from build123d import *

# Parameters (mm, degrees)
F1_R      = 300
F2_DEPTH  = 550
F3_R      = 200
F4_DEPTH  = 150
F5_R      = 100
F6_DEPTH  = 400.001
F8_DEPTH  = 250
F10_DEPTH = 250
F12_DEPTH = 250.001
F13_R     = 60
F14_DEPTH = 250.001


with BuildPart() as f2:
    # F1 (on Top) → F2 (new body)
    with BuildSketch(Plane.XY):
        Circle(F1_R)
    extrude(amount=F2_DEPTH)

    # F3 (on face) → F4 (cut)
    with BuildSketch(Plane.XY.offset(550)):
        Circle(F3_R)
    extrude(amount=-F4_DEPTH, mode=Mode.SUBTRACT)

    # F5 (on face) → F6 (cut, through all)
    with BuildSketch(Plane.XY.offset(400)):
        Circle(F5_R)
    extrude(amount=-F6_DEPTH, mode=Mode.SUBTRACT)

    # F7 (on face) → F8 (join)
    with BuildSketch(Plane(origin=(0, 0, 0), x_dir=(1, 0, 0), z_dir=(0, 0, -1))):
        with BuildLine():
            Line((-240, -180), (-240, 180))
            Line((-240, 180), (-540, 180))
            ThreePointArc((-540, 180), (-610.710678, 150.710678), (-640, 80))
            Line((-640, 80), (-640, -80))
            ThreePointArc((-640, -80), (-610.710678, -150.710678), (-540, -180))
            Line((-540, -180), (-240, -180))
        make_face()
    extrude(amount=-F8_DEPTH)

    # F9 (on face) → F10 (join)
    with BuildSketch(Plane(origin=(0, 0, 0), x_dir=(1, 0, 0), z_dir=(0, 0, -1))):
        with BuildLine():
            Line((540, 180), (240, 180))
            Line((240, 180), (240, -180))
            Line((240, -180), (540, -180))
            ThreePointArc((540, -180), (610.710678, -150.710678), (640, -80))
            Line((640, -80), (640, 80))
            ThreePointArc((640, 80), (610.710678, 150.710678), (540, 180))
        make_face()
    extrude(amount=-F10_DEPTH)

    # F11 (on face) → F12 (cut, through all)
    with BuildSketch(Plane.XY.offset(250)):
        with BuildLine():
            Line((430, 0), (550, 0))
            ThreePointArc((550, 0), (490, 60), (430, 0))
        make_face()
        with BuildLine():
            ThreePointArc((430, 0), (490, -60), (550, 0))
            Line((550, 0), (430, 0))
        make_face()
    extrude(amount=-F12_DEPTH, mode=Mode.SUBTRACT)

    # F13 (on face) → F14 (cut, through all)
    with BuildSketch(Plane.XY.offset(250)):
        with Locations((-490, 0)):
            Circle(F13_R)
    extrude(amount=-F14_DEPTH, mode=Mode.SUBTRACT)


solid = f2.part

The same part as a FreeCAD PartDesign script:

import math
import FreeCAD as App
import Part
import Sketcher

V = App.Vector

doc = App.newDocument("Part")
params = doc.addObject("Spreadsheet::Sheet", "Params")
for row, (alias, value) in enumerate([
    ("sketch1_diameter", "600 mm"),
    ("pad1_length", "550 mm"),
    ("sketch2_diameter", "400 mm"),
    ("pocket1_length", "150 mm"),
    ("sketch3_diameter", "200 mm"),
    ("sketch4_radius", "100 mm"),
    ("sketch4_width", "300 mm"),
    ("sketch4_height", "360 mm"),
    ("pad2_length", "250 mm"),
    ("sketch5_radius", "100 mm"),
    ("sketch5_width", "300 mm"),
    ("sketch5_height", "360 mm"),
    ("pad3_length", "250 mm"),
    ("sketch6_diameter", "120 mm"),
    ("sketch7_diameter", "120 mm"),
], start=1):
    params.set(f"A{row}", alias)
    params.set(f"B{row}", "=" + value)
    params.setAlias(f"B{row}", alias)

body = doc.addObject("PartDesign::Body", "Body")

sketch1 = doc.addObject("Sketcher::SketchObject", "Sketch")
body.addObject(sketch1)
sketch1.AttachmentSupport = (doc.XY_Plane, [""])
sketch1.MapMode = "FlatFace"
sketch1.addGeometry(Part.Circle(V(0, 0, 0), V(0, 0, 1), 300), False)
sketch1.addConstraint(Sketcher.Constraint("Coincident", 0, 3, -1, 1))
sketch1.addConstraint(Sketcher.Constraint("Diameter", 0, 600.0))
sketch1.setExpression("Constraints[1]", "Params.sketch1_diameter")
pad1 = doc.addObject("PartDesign::Pad", "Pad")
body.addObject(pad1)
pad1.Profile = sketch1
pad1.setExpression("Length", "Params.pad1_length")

sketch2 = doc.addObject("Sketcher::SketchObject", "Sketch001")
body.addObject(sketch2)
sketch2.AttachmentSupport = (doc.XY_Plane, [""])
sketch2.MapMode = "FlatFace"
sketch2.AttachmentOffset = App.Placement(V(0, 0, 550), App.Rotation())
sketch2.addGeometry(Part.Circle(V(0, 0, 0), V(0, 0, 1), 200), False)
sketch2.addConstraint(Sketcher.Constraint("Coincident", 0, 3, -1, 1))
sketch2.addConstraint(Sketcher.Constraint("Diameter", 0, 400.0))
sketch2.setExpression("Constraints[1]", "Params.sketch2_diameter")
pocket1 = doc.addObject("PartDesign::Pocket", "Pocket")
body.addObject(pocket1)
pocket1.Profile = sketch2
pocket1.setExpression("Length", "Params.pocket1_length")

sketch3 = doc.addObject("Sketcher::SketchObject", "Sketch002")
body.addObject(sketch3)
sketch3.AttachmentSupport = (doc.XY_Plane, [""])
sketch3.MapMode = "FlatFace"
sketch3.AttachmentOffset = App.Placement(V(0, 0, 400), App.Rotation())
sketch3.addGeometry(Part.Circle(V(0, 0, 0), V(0, 0, 1), 100), False)
sketch3.addConstraint(Sketcher.Constraint("Coincident", 0, 3, -1, 1))
sketch3.addConstraint(Sketcher.Constraint("Diameter", 0, 200.0))
sketch3.setExpression("Constraints[1]", "Params.sketch3_diameter")
pocket2 = doc.addObject("PartDesign::Pocket", "Pocket001")
body.addObject(pocket2)
pocket2.Profile = sketch3
pocket2.Type = "ThroughAll"

sketch4 = doc.addObject("Sketcher::SketchObject", "Sketch003")
body.addObject(sketch4)
sketch4.AttachmentSupport = (doc.XY_Plane, [""])
sketch4.MapMode = "FlatFace"
sketch4.addGeometry(Part.LineSegment(V(-240, 180, 0), V(-240, -180, 0)), False)
sketch4.addGeometry(Part.LineSegment(V(-240, -180, 0), V(-540, -180, 0)), False)
sketch4.addGeometry(Part.ArcOfCircle(Part.Circle(V(-540, -80, 0), V(0, 0, 1), 100), math.radians(-180), math.radians(-90)), False)
sketch4.addGeometry(Part.LineSegment(V(-640, -80, 0), V(-640, 80, 0)), False)
sketch4.addGeometry(Part.ArcOfCircle(Part.Circle(V(-540, 80, 0), V(0, 0, 1), 100), math.radians(90), math.radians(180)), False)
sketch4.addGeometry(Part.LineSegment(V(-540, 180, 0), V(-240, 180, 0)), False)
sketch4.addConstraint(Sketcher.Constraint("Coincident", 0, 2, 1, 1))
sketch4.addConstraint(Sketcher.Constraint("Tangent", 1, 2, 2, 2))
sketch4.addConstraint(Sketcher.Constraint("Tangent", 2, 1, 3, 1))
sketch4.addConstraint(Sketcher.Constraint("Tangent", 3, 2, 4, 2))
sketch4.addConstraint(Sketcher.Constraint("Tangent", 4, 1, 5, 1))
sketch4.addConstraint(Sketcher.Constraint("Coincident", 5, 2, 0, 1))
sketch4.addConstraint(Sketcher.Constraint("Vertical", 0))
sketch4.addConstraint(Sketcher.Constraint("Horizontal", 1))
sketch4.addConstraint(Sketcher.Constraint("Vertical", 3))
sketch4.addConstraint(Sketcher.Constraint("Horizontal", 5))
sketch4.addConstraint(Sketcher.Constraint("Equal", 2, 4))
sketch4.addConstraint(Sketcher.Constraint("Radius", 2, 100.0))
sketch4.addConstraint(Sketcher.Constraint("DistanceX", 1, 2, 1, 1, 300.0))
sketch4.addConstraint(Sketcher.Constraint("DistanceY", 0, 2, 0, 1, 360.0))
sketch4.addConstraint(Sketcher.Constraint("DistanceX", 2, 3, -1, 1, 540.0))
sketch4.addConstraint(Sketcher.Constraint("DistanceY", 2, 3, -1, 1, 80.0))
sketch4.setExpression("Constraints[11]", "Params.sketch4_radius")
sketch4.setExpression("Constraints[12]", "Params.sketch4_width")
sketch4.setExpression("Constraints[13]", "Params.sketch4_height")
pad2 = doc.addObject("PartDesign::Pad", "Pad001")
body.addObject(pad2)
pad2.Profile = sketch4
pad2.setExpression("Length", "Params.pad2_length")

sketch5 = doc.addObject("Sketcher::SketchObject", "Sketch004")
body.addObject(sketch5)
sketch5.AttachmentSupport = (doc.XY_Plane, [""])
sketch5.MapMode = "FlatFace"
sketch5.addGeometry(Part.LineSegment(V(540, -180, 0), V(240, -180, 0)), False)
sketch5.addGeometry(Part.LineSegment(V(240, -180, 0), V(240, 180, 0)), False)
sketch5.addGeometry(Part.LineSegment(V(240, 180, 0), V(540, 180, 0)), False)
sketch5.addGeometry(Part.ArcOfCircle(Part.Circle(V(540, 80, 0), V(0, 0, 1), 100), math.radians(0), math.radians(90)), False)
sketch5.addGeometry(Part.LineSegment(V(640, 80, 0), V(640, -80, 0)), False)
sketch5.addGeometry(Part.ArcOfCircle(Part.Circle(V(540, -80, 0), V(0, 0, 1), 100), math.radians(-90), math.radians(0)), False)
sketch5.addConstraint(Sketcher.Constraint("Coincident", 0, 2, 1, 1))
sketch5.addConstraint(Sketcher.Constraint("Coincident", 1, 2, 2, 1))
sketch5.addConstraint(Sketcher.Constraint("Tangent", 2, 2, 3, 2))
sketch5.addConstraint(Sketcher.Constraint("Tangent", 3, 1, 4, 1))
sketch5.addConstraint(Sketcher.Constraint("Tangent", 4, 2, 5, 2))
sketch5.addConstraint(Sketcher.Constraint("Tangent", 5, 1, 0, 1))
sketch5.addConstraint(Sketcher.Constraint("Horizontal", 0))
sketch5.addConstraint(Sketcher.Constraint("Vertical", 1))
sketch5.addConstraint(Sketcher.Constraint("Horizontal", 2))
sketch5.addConstraint(Sketcher.Constraint("Vertical", 4))
sketch5.addConstraint(Sketcher.Constraint("Equal", 3, 5))
sketch5.addConstraint(Sketcher.Constraint("Radius", 3, 100.0))
sketch5.addConstraint(Sketcher.Constraint("DistanceX", 0, 2, 0, 1, 300.0))
sketch5.addConstraint(Sketcher.Constraint("DistanceY", 1, 1, 1, 2, 360.0))
sketch5.addConstraint(Sketcher.Constraint("DistanceX", -1, 1, 3, 3, 540.0))
sketch5.addConstraint(Sketcher.Constraint("DistanceY", -1, 1, 3, 3, 80.0))
sketch5.setExpression("Constraints[11]", "Params.sketch5_radius")
sketch5.setExpression("Constraints[12]", "Params.sketch5_width")
sketch5.setExpression("Constraints[13]", "Params.sketch5_height")
pad3 = doc.addObject("PartDesign::Pad", "Pad002")
body.addObject(pad3)
pad3.Profile = sketch5
pad3.setExpression("Length", "Params.pad3_length")

sketch6 = doc.addObject("Sketcher::SketchObject", "Sketch005")
body.addObject(sketch6)
sketch6.AttachmentSupport = (doc.XY_Plane, [""])
sketch6.MapMode = "FlatFace"
sketch6.AttachmentOffset = App.Placement(V(0, 0, 250), App.Rotation())
sketch6.addGeometry(Part.Circle(V(490, 0, 0), V(0, 0, 1), 60), False)
sketch6.addConstraint(Sketcher.Constraint("PointOnObject", 0, 3, -1))
sketch6.addConstraint(Sketcher.Constraint("Diameter", 0, 120.0))
sketch6.addConstraint(Sketcher.Constraint("DistanceX", -1, 1, 0, 3, 490.0))
sketch6.setExpression("Constraints[1]", "Params.sketch6_diameter")
pocket3 = doc.addObject("PartDesign::Pocket", "Pocket002")
body.addObject(pocket3)
pocket3.Profile = sketch6
pocket3.Type = "ThroughAll"

sketch7 = doc.addObject("Sketcher::SketchObject", "Sketch006")
body.addObject(sketch7)
sketch7.AttachmentSupport = (doc.XY_Plane, [""])
sketch7.MapMode = "FlatFace"
sketch7.AttachmentOffset = App.Placement(V(0, 0, 250), App.Rotation())
sketch7.addGeometry(Part.Circle(V(-490, 0, 0), V(0, 0, 1), 60), False)
sketch7.addConstraint(Sketcher.Constraint("PointOnObject", 0, 3, -1))
sketch7.addConstraint(Sketcher.Constraint("Diameter", 0, 120.0))
sketch7.addConstraint(Sketcher.Constraint("DistanceX", 0, 3, -1, 1, 490.0))
sketch7.setExpression("Constraints[1]", "Params.sketch7_diameter")
pocket4 = doc.addObject("PartDesign::Pocket", "Pocket003")
body.addObject(pocket4)
pocket4.Profile = sketch7
pocket4.Type = "ThroughAll"

doc.recompute()
